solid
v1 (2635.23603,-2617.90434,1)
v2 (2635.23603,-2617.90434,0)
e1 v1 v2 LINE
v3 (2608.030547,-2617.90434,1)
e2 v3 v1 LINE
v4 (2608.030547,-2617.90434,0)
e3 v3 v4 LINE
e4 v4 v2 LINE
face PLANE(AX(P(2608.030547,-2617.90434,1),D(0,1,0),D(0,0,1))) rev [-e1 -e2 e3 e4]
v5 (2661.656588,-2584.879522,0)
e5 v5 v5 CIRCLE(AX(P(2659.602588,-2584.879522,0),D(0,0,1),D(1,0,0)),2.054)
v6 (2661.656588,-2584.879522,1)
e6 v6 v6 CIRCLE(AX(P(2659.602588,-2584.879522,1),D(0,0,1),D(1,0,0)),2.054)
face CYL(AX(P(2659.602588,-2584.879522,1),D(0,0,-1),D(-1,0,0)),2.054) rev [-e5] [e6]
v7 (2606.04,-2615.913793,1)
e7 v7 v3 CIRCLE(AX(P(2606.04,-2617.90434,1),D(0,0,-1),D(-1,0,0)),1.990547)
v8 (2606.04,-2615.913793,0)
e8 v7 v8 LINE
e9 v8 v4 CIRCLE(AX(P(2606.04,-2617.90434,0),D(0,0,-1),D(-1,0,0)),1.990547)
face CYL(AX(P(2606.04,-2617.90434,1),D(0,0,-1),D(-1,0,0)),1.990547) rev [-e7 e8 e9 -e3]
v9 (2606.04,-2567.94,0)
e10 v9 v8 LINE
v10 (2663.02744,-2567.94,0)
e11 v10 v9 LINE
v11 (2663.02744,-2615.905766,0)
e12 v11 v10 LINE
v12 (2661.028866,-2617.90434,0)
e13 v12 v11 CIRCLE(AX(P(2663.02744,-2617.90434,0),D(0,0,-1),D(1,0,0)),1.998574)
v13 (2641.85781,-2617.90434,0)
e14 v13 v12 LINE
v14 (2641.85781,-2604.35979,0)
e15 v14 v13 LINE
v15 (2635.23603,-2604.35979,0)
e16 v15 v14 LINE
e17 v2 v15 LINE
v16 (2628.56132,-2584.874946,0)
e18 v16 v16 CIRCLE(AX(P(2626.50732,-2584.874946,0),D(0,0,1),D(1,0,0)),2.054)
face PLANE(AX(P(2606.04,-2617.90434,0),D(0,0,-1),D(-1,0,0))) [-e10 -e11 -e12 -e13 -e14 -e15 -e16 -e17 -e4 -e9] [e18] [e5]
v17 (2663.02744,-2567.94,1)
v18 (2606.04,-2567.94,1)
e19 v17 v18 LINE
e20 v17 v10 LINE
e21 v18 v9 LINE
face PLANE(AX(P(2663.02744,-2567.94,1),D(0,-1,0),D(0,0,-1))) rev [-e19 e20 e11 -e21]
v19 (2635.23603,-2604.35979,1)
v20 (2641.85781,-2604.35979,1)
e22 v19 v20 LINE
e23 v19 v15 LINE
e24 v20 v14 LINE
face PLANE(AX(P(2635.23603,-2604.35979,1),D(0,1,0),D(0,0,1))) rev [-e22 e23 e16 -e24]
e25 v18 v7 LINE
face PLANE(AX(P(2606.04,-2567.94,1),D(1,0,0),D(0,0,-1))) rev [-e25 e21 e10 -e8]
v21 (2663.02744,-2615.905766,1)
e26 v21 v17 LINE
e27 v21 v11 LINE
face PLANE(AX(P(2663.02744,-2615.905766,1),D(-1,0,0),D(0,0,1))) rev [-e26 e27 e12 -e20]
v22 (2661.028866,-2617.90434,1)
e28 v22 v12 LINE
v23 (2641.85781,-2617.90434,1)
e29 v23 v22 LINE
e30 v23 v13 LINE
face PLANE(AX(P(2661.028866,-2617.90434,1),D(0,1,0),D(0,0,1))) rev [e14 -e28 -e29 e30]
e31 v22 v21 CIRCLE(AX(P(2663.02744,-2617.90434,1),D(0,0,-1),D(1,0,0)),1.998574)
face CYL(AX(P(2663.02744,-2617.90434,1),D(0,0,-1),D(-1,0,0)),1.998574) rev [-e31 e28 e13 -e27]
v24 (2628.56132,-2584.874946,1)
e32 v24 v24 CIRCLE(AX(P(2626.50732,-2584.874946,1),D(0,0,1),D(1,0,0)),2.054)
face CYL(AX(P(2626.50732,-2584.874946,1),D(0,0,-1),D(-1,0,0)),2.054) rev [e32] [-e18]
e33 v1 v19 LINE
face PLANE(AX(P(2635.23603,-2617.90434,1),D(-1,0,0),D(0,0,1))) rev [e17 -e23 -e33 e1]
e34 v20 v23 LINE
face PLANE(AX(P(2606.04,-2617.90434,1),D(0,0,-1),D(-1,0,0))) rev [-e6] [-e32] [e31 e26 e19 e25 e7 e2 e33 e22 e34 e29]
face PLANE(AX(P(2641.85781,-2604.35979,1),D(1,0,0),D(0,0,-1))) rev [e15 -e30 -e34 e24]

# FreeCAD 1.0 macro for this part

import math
import FreeCAD as App
import Part
import Sketcher

V = App.Vector
Q = App.Units.Quantity

doc = App.newDocument("Part")
body = doc.addObject("PartDesign::Body", "Body")

sketch1 = doc.addObject("Sketcher::SketchObject", "Sketch")
body.addObject(sketch1)
sketch1.AttachmentSupport = (doc.XY_Plane, [""])
sketch1.MapMode = "FlatFace"
sketch1.addGeometry([
    Part.LineSegment(V(2635.2, -2604.4, 0), V(2641.9, -2604.4, 0)),
    Part.LineSegment(V(2641.9, -2604.4, 0), V(2641.9, -2617.9, 0)),
    Part.LineSegment(V(2641.9, -2617.9, 0), V(2661, -2617.9, 0)),
    Part.ArcOfCircle(Part.Circle(V(2663, -2617.9, 0), V(0, 0, 1), 2), math.radians(90), math.radians(180)),
    Part.LineSegment(V(2663, -2615.9, 0), V(2663, -2567.9, 0)),
    Part.LineSegment(V(2663, -2567.9, 0), V(2606, -2567.9, 0)),
    Part.LineSegment(V(2606, -2567.9, 0), V(2606, -2615.9, 0)),
    Part.ArcOfCircle(Part.Circle(V(2606, -2617.9, 0), V(0, 0, 1), 2), math.radians(0), math.radians(90)),
    Part.LineSegment(V(2608, -2617.9, 0), V(2635.2, -2617.9, 0)),
    Part.LineSegment(V(2635.2, -2617.9, 0), V(2635.2, -2604.4, 0)),
    Part.Circle(V(2659.6, -2584.9, 0), V(0, 0, 1), 2.1),
    Part.Circle(V(2626.5, -2584.9, 0), V(0, 0, 1), 2.1),
], False)
sketch1.addConstraint([
    Sketcher.Constraint("Coincident", 0, 2, 1, 1),
    Sketcher.Constraint("Coincident", 1, 2, 2, 1),
    Sketcher.Constraint("Coincident", 2, 2, 3, 2),
    Sketcher.Constraint("Coincident", 3, 1, 4, 1),
    Sketcher.Constraint("Coincident", 4, 2, 5, 1),
    Sketcher.Constraint("Coincident", 5, 2, 6, 1),
    Sketcher.Constraint("Coincident", 6, 2, 7, 2),
    Sketcher.Constraint("Coincident", 7, 1, 8, 1),
    Sketcher.Constraint("Coincident", 8, 2, 9, 1),
    Sketcher.Constraint("Coincident", 9, 2, 0, 1),
    Sketcher.Constraint("Horizontal", 0),
    Sketcher.Constraint("Vertical", 1),
    Sketcher.Constraint("Horizontal", 2),
    Sketcher.Constraint("Vertical", 4),
    Sketcher.Constraint("Horizontal", 5),
    Sketcher.Constraint("Vertical", 6),
    Sketcher.Constraint("Horizontal", 8),
    Sketcher.Constraint("Vertical", 9),
    Sketcher.Constraint("Equal", 10, 11),
    Sketcher.Constraint("Horizontal", 3, 3, 7, 3),
    Sketcher.Constraint("Horizontal", 7, 3, 1, 2),
    Sketcher.Constraint("Horizontal", 2, 2, 7, 1),
    Sketcher.Constraint("Vertical", 7, 3, 5, 2),
    Sketcher.Constraint("Diameter", 10, Q("4.108 mm")),
    Sketcher.Constraint("DistanceX", -1, 1, 7, 3, Q("2606.04 mm")),
    Sketcher.Constraint("DistanceY", 4, 2, -1, 1, Q("2567.94 mm")),
    Sketcher.Constraint("Radius", 3, Q("1.998574 mm")),
    Sketcher.Constraint("Radius", 7, Q("1.990547 mm")),
    Sketcher.Constraint("DistanceX", 0, 1, 0, 2, Q("6.62178 mm")),
    Sketcher.Constraint("DistanceX", 5, 2, 5, 1, Q("56.98744 mm")),
    Sketcher.Constraint("DistanceY", 1, 2, 1, 1, Q("13.54455 mm")),
    Sketcher.Constraint("DistanceX", 2, 1, 2, 2, Q("19.171056 mm")),
    Sketcher.Constraint("DistanceX", 8, 1, 8, 2, Q("27.205483 mm")),
    Sketcher.Constraint("DistanceY", 4, 1, 4, 2, Q("47.965766 mm")),
    Sketcher.Constraint("DistanceY", 10, 3, -1, 1, Q("2584.879522 mm")),
    Sketcher.Constraint("DistanceX", -1, 1, 11, 3, Q("2626.50732 mm")),
    Sketcher.Constraint("DistanceX", 10, 3, 2, 2, Q("1.426278 mm")),
    Sketcher.Constraint("DistanceY", 11, 3, -1, 1, Q("2584.874946 mm")),
])
pad1 = doc.addObject("PartDesign::Pad", "Pad")
body.addObject(pad1)
pad1.Profile = sketch1
pad1.Length = 1

doc.recompute()
